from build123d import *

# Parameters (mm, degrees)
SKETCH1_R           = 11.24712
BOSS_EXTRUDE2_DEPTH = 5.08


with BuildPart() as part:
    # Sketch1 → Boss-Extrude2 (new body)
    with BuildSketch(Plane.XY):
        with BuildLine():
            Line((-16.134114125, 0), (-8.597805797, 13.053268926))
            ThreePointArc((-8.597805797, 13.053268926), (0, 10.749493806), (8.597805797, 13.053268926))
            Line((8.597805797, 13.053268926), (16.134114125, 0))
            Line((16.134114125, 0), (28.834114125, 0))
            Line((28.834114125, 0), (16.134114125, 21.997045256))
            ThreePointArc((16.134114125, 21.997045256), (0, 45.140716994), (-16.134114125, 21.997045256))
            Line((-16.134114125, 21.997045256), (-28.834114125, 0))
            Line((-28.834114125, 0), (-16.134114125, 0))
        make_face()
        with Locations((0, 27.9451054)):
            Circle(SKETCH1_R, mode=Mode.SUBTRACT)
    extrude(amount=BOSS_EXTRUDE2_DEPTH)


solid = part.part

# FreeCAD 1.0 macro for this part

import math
import FreeCAD as App
import Part
import Sketcher

V = App.Vector
Q = App.Units.Quantity

doc = App.newDocument("Part")
body = doc.addObject("PartDesign::Body", "Body")

sketch1 = body.newObject("Sketcher::SketchObject", "Sketch")
sketch1.AttachmentSupport = (doc.getObject("XY_Plane"), [""])
sketch1.MapMode = "FlatFace"
sketch1.addGeometry([
    Part.LineSegment(V(-16, 0, 0), V(-9, 13, 0)),
    Part.ArcOfCircle(Part.Circle(V(0, 28, 0), V(0, 0, 1), 17), math.radians(-120), math.radians(-60)),
    Part.LineSegment(V(9, 13, 0), V(16, 0, 0)),
    Part.LineSegment(V(16, 0, 0), V(29, 0, 0)),
    Part.LineSegment(V(29, 0, 0), V(16, 22, 0)),
    Part.ArcOfCircle(Part.Circle(V(0, 28, 0), V(0, 0, 1), 17), math.radians(-20), math.radians(200)),
    Part.LineSegment(V(-16, 22, 0), V(-29, 0, 0)),
    Part.LineSegment(V(-29, 0, 0), V(-16, 0, 0)),
    Part.Circle(V(0, 28, 0), V(0, 0, 1), 11),
], False)
sketch1.addConstraint([
    Sketcher.Constraint("Coincident", 0, 2, 1, 1),
    Sketcher.Constraint("Coincident", 1, 2, 2, 1),
    Sketcher.Constraint("Coincident", 2, 2, 3, 1),
    Sketcher.Constraint("Coincident", 3, 2, 4, 1),
    Sketcher.Constraint("Coincident", 4, 2, 5, 1),
    Sketcher.Constraint("Coincident", 5, 2, 6, 1),
    Sketcher.Constraint("Coincident", 6, 2, 7, 1),
    Sketcher.Constraint("Coincident", 7, 2, 0, 1),
    Sketcher.Constraint("Horizontal", 3),
    Sketcher.Constraint("Horizontal", 7),
    Sketcher.Constraint("Coincident", 5, 3, 1, 3),
    Sketcher.Constraint("Coincident", 8, 3, 1, 3),
    Sketcher.Constraint("Equal", 1, 5),
    Sketcher.Constraint("Symmetric", 3, 2, 6, 2, -1, 1),
    Sketcher.Constraint("Symmetric", 0, 2, 1, 2, -2),
    Sketcher.Constraint("Symmetric", 2, 2, 7, 2, -2),
    Sketcher.Constraint("Parallel", 2, 4),
    Sketcher.Constraint("Parallel", 0, 6),
    Sketcher.Constraint("Vertical", 2, 2, 4, 2),
    Sketcher.Constraint("Distance", 4, Q("1 in")),
    Sketcher.Constraint("DistanceX", 3, 1, 3, 2, Q("0.5 in")),
    Sketcher.Constraint("Diameter", 8, Q("0.8856 in")),
    Sketcher.Constraint("Radius", 1, Q("17.195612 mm")),
    Sketcher.Constraint("DistanceY", -1, 1, 0, 2, Q("13.053269 mm")),
])
pad1 = body.newObject("PartDesign::Pad", "Pad")
pad1.Profile = sketch1
pad1.Length = Q("0.2 in")

doc.recompute()
